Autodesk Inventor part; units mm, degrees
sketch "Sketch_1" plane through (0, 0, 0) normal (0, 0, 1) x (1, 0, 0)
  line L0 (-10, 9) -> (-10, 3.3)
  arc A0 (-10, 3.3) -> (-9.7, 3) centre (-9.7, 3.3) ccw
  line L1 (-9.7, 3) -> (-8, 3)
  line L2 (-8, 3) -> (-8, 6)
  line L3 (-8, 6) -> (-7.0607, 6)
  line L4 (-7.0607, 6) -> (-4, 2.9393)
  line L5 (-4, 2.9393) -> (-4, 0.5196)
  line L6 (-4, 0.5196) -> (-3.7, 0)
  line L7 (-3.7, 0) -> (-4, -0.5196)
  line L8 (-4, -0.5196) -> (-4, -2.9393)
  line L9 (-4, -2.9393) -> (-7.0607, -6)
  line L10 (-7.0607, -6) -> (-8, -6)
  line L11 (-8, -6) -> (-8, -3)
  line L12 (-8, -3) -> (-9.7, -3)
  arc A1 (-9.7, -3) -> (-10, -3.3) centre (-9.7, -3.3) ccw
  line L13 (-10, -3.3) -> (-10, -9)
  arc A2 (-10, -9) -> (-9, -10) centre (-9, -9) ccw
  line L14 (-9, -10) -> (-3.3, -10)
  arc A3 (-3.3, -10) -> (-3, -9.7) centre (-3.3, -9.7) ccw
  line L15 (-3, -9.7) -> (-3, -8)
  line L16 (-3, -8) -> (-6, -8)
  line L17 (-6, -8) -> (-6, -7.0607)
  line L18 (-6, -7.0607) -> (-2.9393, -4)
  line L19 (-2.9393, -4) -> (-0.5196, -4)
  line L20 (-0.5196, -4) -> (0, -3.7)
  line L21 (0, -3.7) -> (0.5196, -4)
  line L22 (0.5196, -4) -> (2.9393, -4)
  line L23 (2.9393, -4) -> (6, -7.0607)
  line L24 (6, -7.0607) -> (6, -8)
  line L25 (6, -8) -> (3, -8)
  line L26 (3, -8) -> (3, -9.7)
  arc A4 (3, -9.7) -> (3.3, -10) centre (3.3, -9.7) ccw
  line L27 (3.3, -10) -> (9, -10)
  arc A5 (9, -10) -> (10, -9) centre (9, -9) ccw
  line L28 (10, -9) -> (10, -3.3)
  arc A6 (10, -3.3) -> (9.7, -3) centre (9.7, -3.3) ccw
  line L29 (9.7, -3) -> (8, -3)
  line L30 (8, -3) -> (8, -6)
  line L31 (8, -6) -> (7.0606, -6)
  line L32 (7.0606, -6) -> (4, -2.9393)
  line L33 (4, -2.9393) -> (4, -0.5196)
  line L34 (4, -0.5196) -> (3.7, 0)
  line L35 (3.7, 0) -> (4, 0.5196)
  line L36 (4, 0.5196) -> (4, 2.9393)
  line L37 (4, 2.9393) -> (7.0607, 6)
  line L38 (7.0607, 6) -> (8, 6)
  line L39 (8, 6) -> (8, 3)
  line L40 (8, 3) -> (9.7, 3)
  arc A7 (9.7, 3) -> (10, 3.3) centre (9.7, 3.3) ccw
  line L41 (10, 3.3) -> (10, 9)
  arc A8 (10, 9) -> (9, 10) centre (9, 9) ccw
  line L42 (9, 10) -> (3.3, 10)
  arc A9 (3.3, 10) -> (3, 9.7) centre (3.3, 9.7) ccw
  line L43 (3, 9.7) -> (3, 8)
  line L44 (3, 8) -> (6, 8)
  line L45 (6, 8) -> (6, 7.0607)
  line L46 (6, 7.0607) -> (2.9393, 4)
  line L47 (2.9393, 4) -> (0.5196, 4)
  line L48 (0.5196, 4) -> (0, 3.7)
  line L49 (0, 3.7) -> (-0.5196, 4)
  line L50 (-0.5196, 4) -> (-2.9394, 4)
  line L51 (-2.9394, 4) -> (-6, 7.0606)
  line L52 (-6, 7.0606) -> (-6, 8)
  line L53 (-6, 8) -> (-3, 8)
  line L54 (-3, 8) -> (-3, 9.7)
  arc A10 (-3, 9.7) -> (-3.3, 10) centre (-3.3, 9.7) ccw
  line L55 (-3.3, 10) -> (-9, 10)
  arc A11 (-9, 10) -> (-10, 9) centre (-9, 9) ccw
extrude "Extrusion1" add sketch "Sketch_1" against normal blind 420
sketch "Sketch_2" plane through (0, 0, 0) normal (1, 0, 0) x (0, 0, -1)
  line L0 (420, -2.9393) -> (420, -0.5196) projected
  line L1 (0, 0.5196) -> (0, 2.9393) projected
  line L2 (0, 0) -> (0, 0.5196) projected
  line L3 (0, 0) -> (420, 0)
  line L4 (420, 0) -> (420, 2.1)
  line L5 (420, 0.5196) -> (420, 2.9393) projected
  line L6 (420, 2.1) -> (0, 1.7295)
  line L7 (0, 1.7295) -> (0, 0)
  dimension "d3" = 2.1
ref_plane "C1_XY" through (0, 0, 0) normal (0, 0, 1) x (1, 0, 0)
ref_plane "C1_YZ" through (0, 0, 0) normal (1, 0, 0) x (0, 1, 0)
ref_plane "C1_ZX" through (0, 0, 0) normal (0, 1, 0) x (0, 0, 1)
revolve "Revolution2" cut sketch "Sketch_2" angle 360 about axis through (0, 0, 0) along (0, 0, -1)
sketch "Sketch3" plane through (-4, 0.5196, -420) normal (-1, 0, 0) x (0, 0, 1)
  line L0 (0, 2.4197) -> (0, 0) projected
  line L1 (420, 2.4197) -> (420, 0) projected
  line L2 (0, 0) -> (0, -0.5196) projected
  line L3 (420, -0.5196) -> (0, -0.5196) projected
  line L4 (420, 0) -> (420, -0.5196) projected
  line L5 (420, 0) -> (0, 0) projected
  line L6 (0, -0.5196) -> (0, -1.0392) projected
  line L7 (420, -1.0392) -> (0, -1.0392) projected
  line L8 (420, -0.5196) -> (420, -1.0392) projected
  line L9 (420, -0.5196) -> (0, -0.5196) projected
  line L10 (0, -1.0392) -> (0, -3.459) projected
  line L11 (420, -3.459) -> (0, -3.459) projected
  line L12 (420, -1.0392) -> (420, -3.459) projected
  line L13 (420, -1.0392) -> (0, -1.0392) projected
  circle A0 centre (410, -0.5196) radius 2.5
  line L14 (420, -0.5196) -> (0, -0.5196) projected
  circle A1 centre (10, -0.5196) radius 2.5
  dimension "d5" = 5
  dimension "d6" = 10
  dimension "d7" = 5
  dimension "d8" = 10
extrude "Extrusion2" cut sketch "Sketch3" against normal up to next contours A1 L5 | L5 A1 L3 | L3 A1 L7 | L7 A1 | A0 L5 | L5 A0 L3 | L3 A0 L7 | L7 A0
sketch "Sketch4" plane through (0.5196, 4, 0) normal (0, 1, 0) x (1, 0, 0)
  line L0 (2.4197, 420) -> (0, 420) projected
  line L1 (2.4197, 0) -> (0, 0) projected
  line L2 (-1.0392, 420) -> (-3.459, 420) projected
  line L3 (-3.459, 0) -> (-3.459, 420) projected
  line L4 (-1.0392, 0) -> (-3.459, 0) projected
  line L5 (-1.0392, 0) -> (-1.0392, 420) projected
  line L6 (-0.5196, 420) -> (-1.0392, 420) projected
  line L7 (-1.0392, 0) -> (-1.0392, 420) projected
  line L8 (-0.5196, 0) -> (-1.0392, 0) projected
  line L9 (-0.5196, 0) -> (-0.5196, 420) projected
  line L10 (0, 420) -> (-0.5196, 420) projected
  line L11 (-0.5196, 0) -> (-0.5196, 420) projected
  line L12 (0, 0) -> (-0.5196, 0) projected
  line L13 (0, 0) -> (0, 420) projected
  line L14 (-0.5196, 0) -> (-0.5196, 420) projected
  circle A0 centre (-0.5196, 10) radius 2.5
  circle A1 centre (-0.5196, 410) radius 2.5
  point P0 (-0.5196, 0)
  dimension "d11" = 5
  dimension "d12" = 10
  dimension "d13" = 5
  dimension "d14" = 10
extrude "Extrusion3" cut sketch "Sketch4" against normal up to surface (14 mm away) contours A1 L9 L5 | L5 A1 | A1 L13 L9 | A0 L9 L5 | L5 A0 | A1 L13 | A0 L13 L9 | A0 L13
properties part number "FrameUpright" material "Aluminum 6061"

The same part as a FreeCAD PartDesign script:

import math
import FreeCAD as App
import Part
import Sketcher
Q = App.Units.Quantity


def add_polygon(sketch, points):
    """Adds a closed chain of lines whose ends are joined by coincident constraints."""
    first, n = sketch.GeometryCount, len(points)
    for a, b in zip(points, points[1:] + points[:1]):
        sketch.addGeometry(Part.LineSegment(App.Vector(*a, 0), App.Vector(*b, 0)), False)
    for i in range(n):
        sketch.addConstraint(Sketcher.Constraint("Coincident", first + i, 2, first + (i + 1) % n, 1))

doc = App.newDocument("Part")
body = doc.addObject("PartDesign::Body", "Body")

sketch1 = body.newObject("Sketcher::SketchObject", "Sketch")
sketch1.AttachmentSupport = (doc.getObject("XY_Plane"), [""])
sketch1.MapMode = "FlatFace"
sketch1.addGeometry([
    Part.ArcOfCircle(Part.Circle(App.Vector(-9, 9, 0), App.Vector(0, 0, 1), 1), math.radians(90), math.radians(180)),
    Part.LineSegment(App.Vector(-10, 9, 0), App.Vector(-10, 3.3, 0)),
    Part.ArcOfCircle(Part.Circle(App.Vector(-9.7, 3.3, 0), App.Vector(0, 0, 1), 0.3), math.radians(180), math.radians(270)),
    Part.LineSegment(App.Vector(-9.7, 3, 0), App.Vector(-8, 3, 0)),
    Part.LineSegment(App.Vector(-8, 3, 0), App.Vector(-8, 6, 0)),
    Part.LineSegment(App.Vector(-8, 6, 0), App.Vector(-7.06, 6, 0)),
    Part.LineSegment(App.Vector(-7.06, 6, 0), App.Vector(-4, 2.94, 0)),
    Part.LineSegment(App.Vector(-4, 2.94, 0), App.Vector(-4, 0.52, 0)),
    Part.LineSegment(App.Vector(-4, 0.52, 0), App.Vector(-3.7, 0, 0)),
    Part.LineSegment(App.Vector(-3.7, 0, 0), App.Vector(-4, -0.52, 0)),
    Part.LineSegment(App.Vector(-4, -0.52, 0), App.Vector(-4, -2.94, 0)),
    Part.LineSegment(App.Vector(-4, -2.94, 0), App.Vector(-7.06, -6, 0)),
    Part.LineSegment(App.Vector(-7.06, -6, 0), App.Vector(-8, -6, 0)),
    Part.LineSegment(App.Vector(-8, -6, 0), App.Vector(-8, -3, 0)),
    Part.LineSegment(App.Vector(-8, -3, 0), App.Vector(-9.7, -3, 0)),
    Part.ArcOfCircle(Part.Circle(App.Vector(-9.7, -3.3, 0), App.Vector(0, 0, 1), 0.3), math.radians(90), math.radians(180)),
    Part.LineSegment(App.Vector(-10, -3.3, 0), App.Vector(-10, -9, 0)),
    Part.ArcOfCircle(Part.Circle(App.Vector(-9, -9, 0), App.Vector(0, 0, 1), 1), math.radians(180), math.radians(270)),
    Part.LineSegment(App.Vector(-9, -10, 0), App.Vector(-3.3, -10, 0)),
    Part.ArcOfCircle(Part.Circle(App.Vector(-3.3, -9.7, 0), App.Vector(0, 0, 1), 0.3), math.radians(-90), math.radians(0)),
    Part.LineSegment(App.Vector(-3, -9.7, 0), App.Vector(-3, -8, 0)),
    Part.LineSegment(App.Vector(-3, -8, 0), App.Vector(-6, -8, 0)),
    Part.LineSegment(App.Vector(-6, -8, 0), App.Vector(-6, -7.06, 0)),
    Part.LineSegment(App.Vector(-6, -7.06, 0), App.Vector(-2.94, -4, 0)),
    Part.LineSegment(App.Vector(-2.94, -4, 0), App.Vector(-0.52, -4, 0)),
    Part.LineSegment(App.Vector(-0.52, -4, 0), App.Vector(0, -3.7, 0)),
    Part.LineSegment(App.Vector(0, -3.7, 0), App.Vector(0.52, -4, 0)),
    Part.LineSegment(App.Vector(0.52, -4, 0), App.Vector(2.94, -4, 0)),
    Part.LineSegment(App.Vector(2.94, -4, 0), App.Vector(6, -7.06, 0)),
    Part.LineSegment(App.Vector(6, -7.06, 0), App.Vector(6, -8, 0)),
    Part.LineSegment(App.Vector(6, -8, 0), App.Vector(3, -8, 0)),
    Part.LineSegment(App.Vector(3, -8, 0), App.Vector(3, -9.7, 0)),
    Part.ArcOfCircle(Part.Circle(App.Vector(3.3, -9.7, 0), App.Vector(0, 0, 1), 0.3), math.radians(180), math.radians(270)),
    Part.LineSegment(App.Vector(3.3, -10, 0), App.Vector(9, -10, 0)),
    Part.ArcOfCircle(Part.Circle(App.Vector(9, -9, 0), App.Vector(0, 0, 1), 1), math.radians(-90), math.radians(0)),
    Part.LineSegment(App.Vector(10, -9, 0), App.Vector(10, -3.3, 0)),
    Part.ArcOfCircle(Part.Circle(App.Vector(9.7, -3.3, 0), App.Vector(0, 0, 1), 0.3), math.radians(0), math.radians(90)),
    Part.LineSegment(App.Vector(9.7, -3, 0), App.Vector(8, -3, 0)),
    Part.LineSegment(App.Vector(8, -3, 0), App.Vector(8, -6, 0)),
    Part.LineSegment(App.Vector(8, -6, 0), App.Vector(7.06, -6, 0)),
    Part.LineSegment(App.Vector(7.06, -6, 0), App.Vector(4, -2.94, 0)),
    Part.LineSegment(App.Vector(4, -2.94, 0), App.Vector(4, -0.52, 0)),
    Part.LineSegment(App.Vector(4, -0.52, 0), App.Vector(3.7, 0, 0)),
    Part.LineSegment(App.Vector(3.7, 0, 0), App.Vector(4, 0.52, 0)),
    Part.LineSegment(App.Vector(4, 0.52, 0), App.Vector(4, 2.94, 0)),
    Part.LineSegment(App.Vector(4, 2.94, 0), App.Vector(7.06, 6, 0)),
    Part.LineSegment(App.Vector(7.06, 6, 0), App.Vector(8, 6, 0)),
    Part.LineSegment(App.Vector(8, 6, 0), App.Vector(8, 3, 0)),
    Part.LineSegment(App.Vector(8, 3, 0), App.Vector(9.7, 3, 0)),
    Part.ArcOfCircle(Part.Circle(App.Vector(9.7, 3.3, 0), App.Vector(0, 0, 1), 0.3), math.radians(-90), math.radians(0)),
    Part.LineSegment(App.Vector(10, 3.3, 0), App.Vector(10, 9, 0)),
    Part.ArcOfCircle(Part.Circle(App.Vector(9, 9, 0), App.Vector(0, 0, 1), 1), math.radians(0), math.radians(90)),
    Part.LineSegment(App.Vector(9, 10, 0), App.Vector(3.3, 10, 0)),
    Part.ArcOfCircle(Part.Circle(App.Vector(3.3, 9.7, 0), App.Vector(0, 0, 1), 0.3), math.radians(90), math.radians(180)),
    Part.LineSegment(App.Vector(3, 9.7, 0), App.Vector(3, 8, 0)),
    Part.LineSegment(App.Vector(3, 8, 0), App.Vector(6, 8, 0)),
    Part.LineSegment(App.Vector(6, 8, 0), App.Vector(6, 7.06, 0)),
    Part.LineSegment(App.Vector(6, 7.06, 0), App.Vector(2.94, 4, 0)),
    Part.LineSegment(App.Vector(2.94, 4, 0), App.Vector(0.52, 4, 0)),
    Part.LineSegment(App.Vector(0.52, 4, 0), App.Vector(0, 3.7, 0)),
    Part.LineSegment(App.Vector(0, 3.7, 0), App.Vector(-0.52, 4, 0)),
    Part.LineSegment(App.Vector(-0.52, 4, 0), App.Vector(-2.94, 4, 0)),
    Part.LineSegment(App.Vector(-2.94, 4, 0), App.Vector(-6, 7.06, 0)),
    Part.LineSegment(App.Vector(-6, 7.06, 0), App.Vector(-6, 8, 0)),
    Part.LineSegment(App.Vector(-6, 8, 0), App.Vector(-3, 8, 0)),
    Part.LineSegment(App.Vector(-3, 8, 0), App.Vector(-3, 9.7, 0)),
    Part.ArcOfCircle(Part.Circle(App.Vector(-3.3, 9.7, 0), App.Vector(0, 0, 1), 0.3), math.radians(0), math.radians(90)),
    Part.LineSegment(App.Vector(-3.3, 10, 0), App.Vector(-9, 10, 0)),
], False)
sketch1.addConstraint([
    Sketcher.Constraint("Tangent", 0, 2, 1, 1),
    Sketcher.Constraint("Tangent", 1, 2, 2, 1),
    Sketcher.Constraint("Tangent", 2, 2, 3, 1),
    Sketcher.Constraint("Coincident", 3, 2, 4, 1),
    Sketcher.Constraint("Coincident", 4, 2, 5, 1),
    Sketcher.Constraint("Coincident", 5, 2, 6, 1),
    Sketcher.Constraint("Coincident", 6, 2, 7, 1),
    Sketcher.Constraint("Coincident", 7, 2, 8, 1),
    Sketcher.Constraint("Coincident", 8, 2, 9, 1),
    Sketcher.Constraint("Coincident", 9, 2, 10, 1),
    Sketcher.Constraint("Coincident", 10, 2, 11, 1),
    Sketcher.Constraint("Coincident", 11, 2, 12, 1),
    Sketcher.Constraint("Coincident", 12, 2, 13, 1),
    Sketcher.Constraint("Coincident", 13, 2, 14, 1),
    Sketcher.Constraint("Tangent", 14, 2, 15, 1),
    Sketcher.Constraint("Tangent", 15, 2, 16, 1),
    Sketcher.Constraint("Tangent", 16, 2, 17, 1),
    Sketcher.Constraint("Tangent", 17, 2, 18, 1),
    Sketcher.Constraint("Tangent", 18, 2, 19, 1),
    Sketcher.Constraint("Tangent", 19, 2, 20, 1),
    Sketcher.Constraint("Coincident", 20, 2, 21, 1),
    Sketcher.Constraint("Coincident", 21, 2, 22, 1),
    Sketcher.Constraint("Coincident", 22, 2, 23, 1),
    Sketcher.Constraint("Coincident", 23, 2, 24, 1),
    Sketcher.Constraint("Coincident", 24, 2, 25, 1),
    Sketcher.Constraint("Coincident", 25, 2, 26, 1),
    Sketcher.Constraint("Coincident", 26, 2, 27, 1),
    Sketcher.Constraint("Coincident", 27, 2, 28, 1),
    Sketcher.Constraint("Coincident", 28, 2, 29, 1),
    Sketcher.Constraint("Coincident", 29, 2, 30, 1),
    Sketcher.Constraint("Coincident", 30, 2, 31, 1),
    Sketcher.Constraint("Tangent", 31, 2, 32, 1),
    Sketcher.Constraint("Tangent", 32, 2, 33, 1),
    Sketcher.Constraint("Tangent", 33, 2, 34, 1),
    Sketcher.Constraint("Tangent", 34, 2, 35, 1),
    Sketcher.Constraint("Tangent", 35, 2, 36, 1),
    Sketcher.Constraint("Tangent", 36, 2, 37, 1),
    Sketcher.Constraint("Coincident", 37, 2, 38, 1),
    Sketcher.Constraint("Coincident", 38, 2, 39, 1),
    Sketcher.Constraint("Coincident", 39, 2, 40, 1),
    Sketcher.Constraint("Coincident", 40, 2, 41, 1),
    Sketcher.Constraint("Coincident", 41, 2, 42, 1),
    Sketcher.Constraint("Coincident", 42, 2, 43, 1),
    Sketcher.Constraint("Coincident", 43, 2, 44, 1),
    Sketcher.Constraint("Coincident", 44, 2, 45, 1),
    Sketcher.Constraint("Coincident", 45, 2, 46, 1),
    Sketcher.Constraint("Coincident", 46, 2, 47, 1),
    Sketcher.Constraint("Coincident", 47, 2, 48, 1),
    Sketcher.Constraint("Tangent", 48, 2, 49, 1),
    Sketcher.Constraint("Tangent", 49, 2, 50, 1),
    Sketcher.Constraint("Tangent", 50, 2, 51, 1),
    Sketcher.Constraint("Tangent", 51, 2, 52, 1),
    Sketcher.Constraint("Tangent", 52, 2, 53, 1),
    Sketcher.Constraint("Tangent", 53, 2, 54, 1),
    Sketcher.Constraint("Coincident", 54, 2, 55, 1),
    Sketcher.Constraint("Coincident", 55, 2, 56, 1),
    Sketcher.Constraint("Coincident", 56, 2, 57, 1),
    Sketcher.Constraint("Coincident", 57, 2, 58, 1),
    Sketcher.Constraint("Coincident", 58, 2, 59, 1),
    Sketcher.Constraint("Coincident", 59, 2, 60, 1),
    Sketcher.Constraint("Coincident", 60, 2, 61, 1),
    Sketcher.Constraint("Coincident", 61, 2, 62, 1),
    Sketcher.Constraint("Coincident", 62, 2, 63, 1),
    Sketcher.Constraint("Coincident", 63, 2, 64, 1),
    Sketcher.Constraint("Coincident", 64, 2, 65, 1),
    Sketcher.Constraint("Tangent", 65, 2, 66, 1),
    Sketcher.Constraint("Tangent", 66, 2, 67, 1),
    Sketcher.Constraint("Tangent", 67, 2, 0, 1),
    Sketcher.Constraint("Vertical", 1),
    Sketcher.Constraint("Horizontal", 3),
    Sketcher.Constraint("Vertical", 4),
    Sketcher.Constraint("Horizontal", 5),
    Sketcher.Constraint("Vertical", 7),
    Sketcher.Constraint("Vertical", 10),
    Sketcher.Constraint("Horizontal", 12),
    Sketcher.Constraint("Vertical", 13),
    Sketcher.Constraint("Horizontal", 14),
    Sketcher.Constraint("Vertical", 16),
    Sketcher.Constraint("Horizontal", 18),
    Sketcher.Constraint("Vertical", 20),
    Sketcher.Constraint("Horizontal", 21),
    Sketcher.Constraint("Vertical", 22),
    Sketcher.Constraint("Horizontal", 24),
    Sketcher.Constraint("Horizontal", 27),
    Sketcher.Constraint("Vertical", 29),
    Sketcher.Constraint("Horizontal", 30),
    Sketcher.Constraint("Vertical", 31),
    Sketcher.Constraint("Horizontal", 33),
    Sketcher.Constraint("Vertical", 35),
    Sketcher.Constraint("Horizontal", 37),
    Sketcher.Constraint("Vertical", 38),
    Sketcher.Constraint("Horizontal", 39),
    Sketcher.Constraint("Vertical", 41),
    Sketcher.Constraint("Vertical", 44),
    Sketcher.Constraint("Horizontal", 46),
    Sketcher.Constraint("Vertical", 47),
    Sketcher.Constraint("Horizontal", 48),
    Sketcher.Constraint("Vertical", 50),
    Sketcher.Constraint("Horizontal", 52),
    Sketcher.Constraint("Vertical", 54),
    Sketcher.Constraint("Horizontal", 55),
    Sketcher.Constraint("Vertical", 56),
    Sketcher.Constraint("Horizontal", 58),
    Sketcher.Constraint("Horizontal", 61),
    Sketcher.Constraint("Vertical", 63),
    Sketcher.Constraint("Horizontal", 64),
    Sketcher.Constraint("Vertical", 65),
    Sketcher.Constraint("Horizontal", 67),
    Sketcher.Constraint("Equal", 2, 15),
    Sketcher.Constraint("Equal", 0, 17),
    Sketcher.Constraint("Equal", 15, 19),
    Sketcher.Constraint("Equal", 19, 32),
    Sketcher.Constraint("Equal", 17, 34),
    Sketcher.Constraint("Equal", 32, 36),
    Sketcher.Constraint("Equal", 36, 49),
    Sketcher.Constraint("Equal", 34, 51),
    Sketcher.Constraint("Equal", 49, 53),
    Sketcher.Constraint("Equal", 53, 66),
    Sketcher.Constraint("Symmetric", 0, 3, 34, 3, -1, 1),
    Sketcher.Constraint("Symmetric", 15, 3, 49, 3, -1, 1),
    Sketcher.Constraint("Symmetric", 19, 3, 53, 3, -1, 1),
    Sketcher.Constraint("Symmetric", 3, 2, 37, 2, -1, 1),
    Sketcher.Constraint("Symmetric", 5, 2, 39, 2, -1, 1),
    Sketcher.Constraint("Symmetric", 6, 2, 40, 2, -1, 1),
    Sketcher.Constraint("Symmetric", 8, 2, 42, 2, -1, 1),
    Sketcher.Constraint("Symmetric", 9, 2, 43, 2, -1, 1),
    Sketcher.Constraint("Symmetric", 11, 2, 45, 2, -1, 1),
    Sketcher.Constraint("Symmetric", 21, 2, 55, 2, -1, 1),
    Sketcher.Constraint("Symmetric", 23, 2, 57, 2, -1, 1),
    Sketcher.Constraint("Symmetric", 25, 2, 59, 2, -1, 1),
    Sketcher.Constraint("Symmetric", 26, 2, 60, 2, -1, 1),
    Sketcher.Constraint("Symmetric", 28, 2, 62, 2, -1, 1),
    Sketcher.Constraint("Symmetric", 30, 2, 64, 2, -1, 1),
    Sketcher.Constraint("Symmetric", 19, 3, 32, 3, -2),
    Sketcher.Constraint("Symmetric", 15, 3, 36, 3, -2),
    Sketcher.Constraint("Symmetric", 24, 2, 26, 2, -2),
    Sketcher.Constraint("Symmetric", 22, 2, 28, 2, -2),
    Sketcher.Constraint("Symmetric", 12, 2, 38, 2, -2),
    Sketcher.Constraint("Symmetric", 10, 2, 40, 2, -2),
    Sketcher.Constraint("PointOnObject", 8, 2, -1),
    Sketcher.Constraint("PointOnObject", 25, 2, -2),
    Sketcher.Constraint("Perpendicular", 6, 11),
    Sketcher.Constraint("Parallel", 11, 23),
    Sketcher.Constraint("Perpendicular", 8, 25),
    Sketcher.Constraint("Perpendicular", 9, 26),
    Sketcher.Constraint("Perpendicular", 23, 28),
    Sketcher.Constraint("Perpendicular", 25, 42),
    Sketcher.Constraint("Perpendicular", 40, 45),
    Sketcher.Constraint("Parallel", 45, 57),
    Sketcher.Constraint("Perpendicular", 42, 59),
    Sketcher.Constraint("Perpendicular", 57, 62),
    Sketcher.Constraint("Horizontal", 21, 2, 29, 2),
    Sketcher.Constraint("Vertical", 5, 2, 11, 2),
    Sketcher.Constraint("Vertical", 38, 2, 46, 2),
    Sketcher.Constraint("Equal", 67, 1),
    Sketcher.Constraint("Equal", 64, 4),
    Sketcher.Constraint("Equal", 61, 7),
    Sketcher.Constraint("Equal", 48, 20),
    Sketcher.Constraint("Equal", 46, 22),
    Sketcher.Constraint("Equal", 11, 23),
    Sketcher.Constraint("Equal", 9, 25),
    Sketcher.Constraint("Radius", 0, Q("1 mm")),
    Sketcher.Constraint("Radius", 2, Q("0.3 mm")),
    Sketcher.Constraint("DistanceX", 21, 2, 21, 1, Q("3 mm")),
    Sketcher.Constraint("Angle", 8, Q("-59.9993 deg")),
    Sketcher.Constraint("DistanceX", 3, 1, 3, 2, Q("1.7 mm")),
    Sketcher.Constraint("DistanceX", 18, 1, 18, 2, Q("5.7 mm")),
    Sketcher.Constraint("DistanceX", 0, 3, -1, 1, Q("9 mm")),
    Sketcher.Constraint("DistanceX", 6, 2, -1, 1, Q("4 mm")),
    Sketcher.Constraint("Distance", 8, Q("0.6 mm")),
    Sketcher.Constraint("DistanceX", 5, 1, 5, 2, Q("0.9393 mm")),
])
pad1 = body.newObject("PartDesign::Pad", "Pad")
pad1.Profile = sketch1
pad1.Length = 420
pad1.Reversed = True

sketch2 = body.newObject("Sketcher::SketchObject", "Sketch001")
sketch2.AttachmentSupport = (doc.getObject("YZ_Plane"), [""])
sketch2.MapMode = "FlatFace"
add_polygon(sketch2, [(1.7, 0), (0, 0), (0, -420), (2.1, -420)])
sketch2.addConstraint([
    Sketcher.Constraint("Horizontal", 0),
    Sketcher.Constraint("Vertical", 1),
    Sketcher.Constraint("Horizontal", 2),
    Sketcher.Constraint("Coincident", 0, 2, -1, 1),
    Sketcher.Constraint("DistanceX", 2, 1, 2, 2, Q("2.1 mm")),
    Sketcher.Constraint("DistanceY", 1, 2, 1, 1, Q("420 mm")),
    Sketcher.Constraint("Angle", 3, Q("90.0505 deg")),
])
groove = body.newObject("PartDesign::Groove", "Groove")
groove.Profile = sketch2
groove.ReferenceAxis = (sketch2, ["V_Axis"])
groove.Angle = 360

sketch3 = body.newObject("Sketcher::SketchObject", "Sketch002")
sketch3.AttachmentSupport = (doc.getObject("YZ_Plane"), [""])
sketch3.MapMode = "FlatFace"
sketch3.AttachmentOffset = App.Placement(App.Vector(0, 0, -4), App.Rotation())
sketch3.addGeometry([
    Part.Circle(App.Vector(0, -410, 0), App.Vector(0, 0, 1), 2.5),
    Part.Circle(App.Vector(0, -10, 0), App.Vector(0, 0, 1), 2.5),
], False)
sketch3.addConstraint([
    Sketcher.Constraint("Equal", 0, 1),
    Sketcher.Constraint("PointOnObject", 0, 3, -2),
    Sketcher.Constraint("PointOnObject", 1, 3, -2),
    Sketcher.Constraint("Diameter", 0, Q("5 mm")),
    Sketcher.Constraint("DistanceY", 1, 3, -1, 1, Q("10 mm")),
    Sketcher.Constraint("DistanceY", 0, 3, -1, 1, Q("410 mm")),
])
pocket1 = body.newObject("PartDesign::Pocket", "Pocket")
pocket1.Profile = sketch3
pocket1.Length = 8
pocket1.Reversed = True

sketch4 = body.newObject("Sketcher::SketchObject", "Sketch003")
sketch4.AttachmentSupport = (doc.getObject("XZ_Plane"), [""])
sketch4.MapMode = "FlatFace"
sketch4.AttachmentOffset = App.Placement(App.Vector(0, 0, -4), App.Rotation())
sketch4.addGeometry([
    Part.Circle(App.Vector(0, -410, 0), App.Vector(0, 0, 1), 2.5),
    Part.Circle(App.Vector(0, -10, 0), App.Vector(0, 0, 1), 2.5),
], False)
sketch4.addConstraint([
    Sketcher.Constraint("Equal", 0, 1),
    Sketcher.Constraint("PointOnObject", 0, 3, -2),
    Sketcher.Constraint("PointOnObject", 1, 3, -2),
    Sketcher.Constraint("Diameter", 0, Q("5 mm")),
    Sketcher.Constraint("DistanceY", 1, 3, -1, 1, Q("10 mm")),
    Sketcher.Constraint("DistanceY", 0, 3, -1, 1, Q("410 mm")),
])
pocket2 = body.newObject("PartDesign::Pocket", "Pocket001")
pocket2.Profile = sketch4
pocket2.Length = 14
pocket2.Reversed = True

doc.recompute()
